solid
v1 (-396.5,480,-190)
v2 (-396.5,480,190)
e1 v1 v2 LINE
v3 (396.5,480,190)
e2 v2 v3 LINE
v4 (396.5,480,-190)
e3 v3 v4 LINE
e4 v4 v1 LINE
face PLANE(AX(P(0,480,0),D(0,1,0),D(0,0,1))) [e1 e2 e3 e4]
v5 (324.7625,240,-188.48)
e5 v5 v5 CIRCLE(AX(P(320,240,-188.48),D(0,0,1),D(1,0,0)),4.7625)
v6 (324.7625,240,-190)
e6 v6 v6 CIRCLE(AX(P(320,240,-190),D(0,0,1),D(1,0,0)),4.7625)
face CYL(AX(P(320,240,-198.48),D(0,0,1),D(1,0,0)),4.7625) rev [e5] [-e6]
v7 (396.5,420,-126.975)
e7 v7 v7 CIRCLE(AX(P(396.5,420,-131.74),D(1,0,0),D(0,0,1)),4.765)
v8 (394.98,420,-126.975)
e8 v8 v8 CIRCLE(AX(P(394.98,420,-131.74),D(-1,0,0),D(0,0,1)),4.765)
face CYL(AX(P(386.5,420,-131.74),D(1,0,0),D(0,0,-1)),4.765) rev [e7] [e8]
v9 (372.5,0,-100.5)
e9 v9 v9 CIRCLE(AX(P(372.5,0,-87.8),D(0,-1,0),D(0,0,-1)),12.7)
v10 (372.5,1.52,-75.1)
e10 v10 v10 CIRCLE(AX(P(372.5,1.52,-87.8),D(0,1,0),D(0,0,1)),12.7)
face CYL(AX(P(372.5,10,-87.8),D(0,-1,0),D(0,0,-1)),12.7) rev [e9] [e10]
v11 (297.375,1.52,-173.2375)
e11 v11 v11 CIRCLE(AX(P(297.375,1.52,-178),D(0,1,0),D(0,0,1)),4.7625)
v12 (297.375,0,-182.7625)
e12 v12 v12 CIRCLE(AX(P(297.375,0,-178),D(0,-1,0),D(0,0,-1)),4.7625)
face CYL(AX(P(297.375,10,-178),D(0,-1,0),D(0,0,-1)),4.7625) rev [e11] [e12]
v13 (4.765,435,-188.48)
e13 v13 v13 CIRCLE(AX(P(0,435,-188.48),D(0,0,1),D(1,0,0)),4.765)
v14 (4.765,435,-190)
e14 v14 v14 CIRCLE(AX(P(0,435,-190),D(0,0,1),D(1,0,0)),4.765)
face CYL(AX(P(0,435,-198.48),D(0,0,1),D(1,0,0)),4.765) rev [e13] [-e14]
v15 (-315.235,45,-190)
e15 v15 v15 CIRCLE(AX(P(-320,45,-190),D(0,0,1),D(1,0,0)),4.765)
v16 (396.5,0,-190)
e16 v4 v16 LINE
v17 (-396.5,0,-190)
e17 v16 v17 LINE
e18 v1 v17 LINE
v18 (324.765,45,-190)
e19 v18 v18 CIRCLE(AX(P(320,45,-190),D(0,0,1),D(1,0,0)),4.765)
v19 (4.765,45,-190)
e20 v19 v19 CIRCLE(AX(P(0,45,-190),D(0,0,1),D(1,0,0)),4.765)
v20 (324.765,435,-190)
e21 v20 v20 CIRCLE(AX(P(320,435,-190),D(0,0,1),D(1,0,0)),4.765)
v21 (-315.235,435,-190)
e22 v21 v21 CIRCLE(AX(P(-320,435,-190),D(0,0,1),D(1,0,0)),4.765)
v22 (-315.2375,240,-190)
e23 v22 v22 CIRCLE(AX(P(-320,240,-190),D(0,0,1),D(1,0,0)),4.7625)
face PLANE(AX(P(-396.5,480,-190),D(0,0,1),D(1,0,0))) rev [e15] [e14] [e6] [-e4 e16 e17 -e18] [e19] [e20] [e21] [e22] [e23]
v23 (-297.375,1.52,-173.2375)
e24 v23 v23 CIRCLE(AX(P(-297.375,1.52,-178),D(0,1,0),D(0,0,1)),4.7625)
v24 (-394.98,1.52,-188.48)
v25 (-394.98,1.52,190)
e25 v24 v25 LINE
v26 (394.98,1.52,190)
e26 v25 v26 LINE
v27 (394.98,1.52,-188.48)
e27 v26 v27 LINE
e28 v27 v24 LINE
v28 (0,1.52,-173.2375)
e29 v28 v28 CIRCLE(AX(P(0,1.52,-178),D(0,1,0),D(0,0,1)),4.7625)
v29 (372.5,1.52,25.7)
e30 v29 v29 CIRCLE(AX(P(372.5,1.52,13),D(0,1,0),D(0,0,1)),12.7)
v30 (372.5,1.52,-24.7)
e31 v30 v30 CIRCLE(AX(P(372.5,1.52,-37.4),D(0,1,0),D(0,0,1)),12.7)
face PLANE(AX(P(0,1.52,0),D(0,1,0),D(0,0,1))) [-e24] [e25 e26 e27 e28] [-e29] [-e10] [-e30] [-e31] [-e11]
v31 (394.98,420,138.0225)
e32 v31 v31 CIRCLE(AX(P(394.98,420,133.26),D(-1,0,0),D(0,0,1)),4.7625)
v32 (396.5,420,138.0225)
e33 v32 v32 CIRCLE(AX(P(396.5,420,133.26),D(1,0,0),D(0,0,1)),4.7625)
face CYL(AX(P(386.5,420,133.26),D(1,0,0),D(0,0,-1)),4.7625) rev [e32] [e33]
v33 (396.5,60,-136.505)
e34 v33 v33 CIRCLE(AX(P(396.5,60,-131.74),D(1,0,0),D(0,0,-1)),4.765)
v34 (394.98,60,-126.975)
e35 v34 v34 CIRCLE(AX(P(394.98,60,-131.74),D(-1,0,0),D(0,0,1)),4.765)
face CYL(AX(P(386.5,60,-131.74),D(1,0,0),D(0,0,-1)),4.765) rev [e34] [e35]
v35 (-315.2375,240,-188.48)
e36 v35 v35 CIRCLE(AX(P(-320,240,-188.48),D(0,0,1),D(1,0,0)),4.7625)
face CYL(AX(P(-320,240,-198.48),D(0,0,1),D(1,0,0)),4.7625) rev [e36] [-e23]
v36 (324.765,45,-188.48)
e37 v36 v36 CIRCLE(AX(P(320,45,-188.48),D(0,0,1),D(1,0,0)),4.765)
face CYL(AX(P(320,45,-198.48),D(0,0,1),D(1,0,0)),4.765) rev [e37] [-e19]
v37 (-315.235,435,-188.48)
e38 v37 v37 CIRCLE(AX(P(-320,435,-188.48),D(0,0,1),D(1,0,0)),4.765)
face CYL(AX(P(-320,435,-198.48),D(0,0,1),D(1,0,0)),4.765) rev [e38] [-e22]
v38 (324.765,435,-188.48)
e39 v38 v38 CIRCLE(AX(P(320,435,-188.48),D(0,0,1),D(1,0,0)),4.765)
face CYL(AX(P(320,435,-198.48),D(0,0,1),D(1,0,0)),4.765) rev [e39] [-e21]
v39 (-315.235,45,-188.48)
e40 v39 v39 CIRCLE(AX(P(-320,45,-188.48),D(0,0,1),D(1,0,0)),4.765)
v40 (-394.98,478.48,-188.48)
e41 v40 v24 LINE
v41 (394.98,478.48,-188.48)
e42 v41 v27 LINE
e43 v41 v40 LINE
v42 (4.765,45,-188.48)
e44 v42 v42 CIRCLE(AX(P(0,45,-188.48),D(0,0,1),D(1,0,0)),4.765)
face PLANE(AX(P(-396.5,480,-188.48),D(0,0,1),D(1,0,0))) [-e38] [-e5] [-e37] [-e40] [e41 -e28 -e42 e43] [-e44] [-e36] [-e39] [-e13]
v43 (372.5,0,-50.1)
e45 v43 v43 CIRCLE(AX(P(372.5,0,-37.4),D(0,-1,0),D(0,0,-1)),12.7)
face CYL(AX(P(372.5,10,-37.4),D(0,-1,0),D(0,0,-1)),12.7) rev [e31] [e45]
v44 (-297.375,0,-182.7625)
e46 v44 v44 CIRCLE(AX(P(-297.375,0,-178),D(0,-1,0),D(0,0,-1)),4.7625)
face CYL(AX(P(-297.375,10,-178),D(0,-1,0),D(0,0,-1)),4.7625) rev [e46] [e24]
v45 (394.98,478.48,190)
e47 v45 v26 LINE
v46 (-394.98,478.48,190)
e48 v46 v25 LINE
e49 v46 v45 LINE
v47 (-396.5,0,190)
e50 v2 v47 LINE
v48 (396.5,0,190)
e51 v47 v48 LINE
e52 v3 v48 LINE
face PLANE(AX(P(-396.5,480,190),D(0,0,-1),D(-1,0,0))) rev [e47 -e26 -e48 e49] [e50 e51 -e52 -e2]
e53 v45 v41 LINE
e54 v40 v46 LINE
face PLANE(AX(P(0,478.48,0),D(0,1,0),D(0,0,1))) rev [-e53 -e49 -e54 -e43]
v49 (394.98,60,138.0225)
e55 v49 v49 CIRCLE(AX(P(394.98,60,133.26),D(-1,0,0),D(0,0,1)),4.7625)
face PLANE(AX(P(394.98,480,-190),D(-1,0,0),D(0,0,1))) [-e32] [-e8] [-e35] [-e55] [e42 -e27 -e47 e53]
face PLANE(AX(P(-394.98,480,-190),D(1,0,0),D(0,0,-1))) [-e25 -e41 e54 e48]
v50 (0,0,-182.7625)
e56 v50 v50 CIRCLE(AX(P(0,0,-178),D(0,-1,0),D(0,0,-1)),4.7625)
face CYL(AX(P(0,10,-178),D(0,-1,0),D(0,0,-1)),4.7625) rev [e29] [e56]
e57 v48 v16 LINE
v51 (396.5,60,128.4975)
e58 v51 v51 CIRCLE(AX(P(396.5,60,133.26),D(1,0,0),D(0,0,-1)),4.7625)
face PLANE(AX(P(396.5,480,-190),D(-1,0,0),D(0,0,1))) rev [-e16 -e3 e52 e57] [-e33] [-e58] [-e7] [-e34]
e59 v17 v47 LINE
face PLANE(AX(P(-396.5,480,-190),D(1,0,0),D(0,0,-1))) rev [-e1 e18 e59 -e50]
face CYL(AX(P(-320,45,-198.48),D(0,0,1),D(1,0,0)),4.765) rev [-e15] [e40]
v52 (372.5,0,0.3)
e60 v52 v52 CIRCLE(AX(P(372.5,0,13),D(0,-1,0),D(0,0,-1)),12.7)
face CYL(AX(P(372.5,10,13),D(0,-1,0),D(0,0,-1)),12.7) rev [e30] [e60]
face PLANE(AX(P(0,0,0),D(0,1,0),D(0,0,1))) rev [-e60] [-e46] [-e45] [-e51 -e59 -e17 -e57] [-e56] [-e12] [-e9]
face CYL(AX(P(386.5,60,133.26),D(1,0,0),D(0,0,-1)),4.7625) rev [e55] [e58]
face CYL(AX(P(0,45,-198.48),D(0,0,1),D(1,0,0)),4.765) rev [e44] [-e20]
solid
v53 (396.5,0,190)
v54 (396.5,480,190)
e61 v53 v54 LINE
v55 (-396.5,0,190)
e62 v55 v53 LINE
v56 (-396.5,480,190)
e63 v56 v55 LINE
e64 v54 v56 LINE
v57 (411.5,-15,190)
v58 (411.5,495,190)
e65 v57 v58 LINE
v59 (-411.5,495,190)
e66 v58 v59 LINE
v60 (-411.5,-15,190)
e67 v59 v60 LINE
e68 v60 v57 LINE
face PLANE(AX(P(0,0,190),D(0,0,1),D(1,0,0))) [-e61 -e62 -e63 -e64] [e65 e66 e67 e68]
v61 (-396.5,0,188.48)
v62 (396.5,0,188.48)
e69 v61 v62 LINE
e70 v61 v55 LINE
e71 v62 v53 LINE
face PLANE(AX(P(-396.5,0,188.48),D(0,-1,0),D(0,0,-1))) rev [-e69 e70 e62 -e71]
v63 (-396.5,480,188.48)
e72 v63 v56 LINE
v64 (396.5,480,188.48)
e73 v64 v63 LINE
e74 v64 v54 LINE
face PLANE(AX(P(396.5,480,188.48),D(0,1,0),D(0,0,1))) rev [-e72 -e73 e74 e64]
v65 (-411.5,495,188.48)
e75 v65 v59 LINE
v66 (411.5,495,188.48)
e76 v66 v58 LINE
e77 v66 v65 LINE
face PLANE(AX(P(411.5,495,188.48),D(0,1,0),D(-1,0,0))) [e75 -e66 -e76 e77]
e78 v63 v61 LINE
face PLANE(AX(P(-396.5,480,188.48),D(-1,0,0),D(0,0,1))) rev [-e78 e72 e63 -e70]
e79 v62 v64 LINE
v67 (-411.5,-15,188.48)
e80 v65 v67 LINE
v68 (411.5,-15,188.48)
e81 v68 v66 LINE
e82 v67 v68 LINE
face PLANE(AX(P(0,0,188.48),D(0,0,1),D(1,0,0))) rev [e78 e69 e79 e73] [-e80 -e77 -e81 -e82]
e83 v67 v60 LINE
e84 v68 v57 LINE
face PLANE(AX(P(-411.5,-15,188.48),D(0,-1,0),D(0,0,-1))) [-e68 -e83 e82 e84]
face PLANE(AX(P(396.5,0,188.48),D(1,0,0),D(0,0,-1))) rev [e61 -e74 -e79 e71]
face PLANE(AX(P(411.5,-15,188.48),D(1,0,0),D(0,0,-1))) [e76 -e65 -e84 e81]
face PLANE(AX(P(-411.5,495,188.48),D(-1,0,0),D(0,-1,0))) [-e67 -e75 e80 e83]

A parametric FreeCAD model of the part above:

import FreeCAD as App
import Part
import Sketcher
Q = App.Units.Quantity


def faces_at(feature, points):
    """Names of the faces that lie closest to the given points."""
    faces = feature.Shape.Faces
    near = lambda p: min(range(len(faces)), key=lambda i: faces[i].distToShape(Part.Vertex(*p))[0])
    return sorted({f"Face{near(p) + 1}" for p in points})


def add_polygon(sketch, points):
    """Adds a closed chain of lines whose ends are joined by coincident constraints."""
    first, n = sketch.GeometryCount, len(points)
    for a, b in zip(points, points[1:] + points[:1]):
        sketch.addGeometry(Part.LineSegment(App.Vector(*a, 0), App.Vector(*b, 0)), False)
    for i in range(n):
        sketch.addConstraint(Sketcher.Constraint("Coincident", first + i, 2, first + (i + 1) % n, 1))

doc = App.newDocument("Part")
body = doc.addObject("PartDesign::Body", "Body")

# Sketch on XZ plane
sketch1 = body.newObject("Sketcher::SketchObject", "Sketch")
sketch1.AttachmentSupport = (doc.getObject("XZ_Plane"), [""])
sketch1.MapMode = "FlatFace"
add_polygon(sketch1, [(-396.5, -190), (-396.5, 190), (396.5, 190), (396.5, -190)])  # lines 0-3
sketch1.addConstraint([
    Sketcher.Constraint("Vertical", 0),
    Sketcher.Constraint("Horizontal", 1),
    Sketcher.Constraint("Vertical", 2),
    Sketcher.Constraint("Horizontal", 3),
    Sketcher.Constraint("Symmetric", 0, 2, 2, 2, -1, 1),
    Sketcher.Constraint("DistanceX", 1, 1, 1, 2, Q("793 mm")),
    Sketcher.Constraint("DistanceY", 0, 1, 0, 2, Q("380 mm")),
])
pad1 = body.newObject("PartDesign::Pad", "Pad")
pad1.Profile = sketch1
pad1.Length = 480
pad1.Reversed = True
doc.recompute()

thickness = body.newObject("PartDesign::Thickness", "Thickness")
thickness.Base = (pad1, faces_at(pad1, [(0, 240, 190)]))
thickness.Value = 1.52
thickness.Reversed = True
thickness.Join = "Intersection"

# Sketch on YZ plane
sketch2 = body.newObject("Sketcher::SketchObject", "Sketch001")
sketch2.AttachmentSupport = (doc.getObject("YZ_Plane"), [""])
sketch2.MapMode = "FlatFace"
sketch2.AttachmentOffset = App.Placement(App.Vector(0, 0, 396.5), App.Rotation())
sketch2.addGeometry([
    Part.Circle(App.Vector(60, -131.74, 0), App.Vector(0, 0, 1), 4.765),
    Part.Circle(App.Vector(60, 133.26, 0), App.Vector(0, 0, 1), 4.7625),
    Part.Circle(App.Vector(420, -131.74, 0), App.Vector(0, 0, 1), 4.765),
    Part.Circle(App.Vector(420, 133.26, 0), App.Vector(0, 0, 1), 4.7625),
], False)
sketch2.addConstraint([
    Sketcher.Constraint("Equal", 0, 2),
    Sketcher.Constraint("Equal", 1, 3),
    Sketcher.Constraint("Horizontal", 0, 3, 2, 3),
    Sketcher.Constraint("Horizontal", 1, 3, 3, 3),
    Sketcher.Constraint("Vertical", 0, 3, 1, 3),
    Sketcher.Constraint("Vertical", 2, 3, 3, 3),
    Sketcher.Constraint("Diameter", 0, Q("9.53 mm")),
    Sketcher.Constraint("Diameter", 1, Q("9.525 mm")),
    Sketcher.Constraint("DistanceX", -1, 1, 0, 3, Q("60 mm")),
    Sketcher.Constraint("DistanceX", -1, 1, 2, 3, Q("420 mm")),
    Sketcher.Constraint("DistanceY", 0, 3, 1, 3, Q("265 mm")),
    Sketcher.Constraint("DistanceY", 0, 3, -1, 1, Q("131.74 mm")),
])
pocket1 = body.newObject("PartDesign::Pocket", "Pocket")
pocket1.Profile = sketch2
pocket1.Length = 10

# Sketch on XY plane
sketch3 = body.newObject("Sketcher::SketchObject", "Sketch002")
sketch3.AttachmentSupport = (doc.getObject("XY_Plane"), [""])
sketch3.MapMode = "FlatFace"
sketch3.AttachmentOffset = App.Placement(App.Vector(0, 0, -188.48), App.Rotation())
sketch3.addGeometry([
    Part.Circle(App.Vector(-320, 435, 0), App.Vector(0, 0, 1), 4.765),  # 0
    Part.Circle(App.Vector(-320, 240, 0), App.Vector(0, 0, 1), 4.7625),  # 1
    Part.Circle(App.Vector(-320, 45, 0), App.Vector(0, 0, 1), 4.765),  # 2
    Part.Circle(App.Vector(320, 45, 0), App.Vector(0, 0, 1), 4.765),  # 3
    Part.Circle(App.Vector(320, 435, 0), App.Vector(0, 0, 1), 4.765),  # 4
    Part.Circle(App.Vector(320, 240, 0), App.Vector(0, 0, 1), 4.7625),  # 5
    Part.Circle(App.Vector(0, 45, 0), App.Vector(0, 0, 1), 4.765),  # 6
    Part.Circle(App.Vector(0, 435, 0), App.Vector(0, 0, 1), 4.765),  # 7
], False)
sketch3.addConstraint([
    Sketcher.Constraint("Equal", 0, 2),
    Sketcher.Constraint("Equal", 2, 3),
    Sketcher.Constraint("Equal", 3, 4),
    Sketcher.Constraint("Equal", 1, 5),
    Sketcher.Constraint("Equal", 4, 6),
    Sketcher.Constraint("Equal", 6, 7),
    Sketcher.Constraint("Symmetric", 2, 3, 3, 3, -2),
    Sketcher.Constraint("Symmetric", 0, 3, 4, 3, -2),
    Sketcher.Constraint("Symmetric", 1, 3, 5, 3, -2),
    Sketcher.Constraint("PointOnObject", 6, 3, -2),
    Sketcher.Constraint("PointOnObject", 7, 3, -2),
    Sketcher.Constraint("Horizontal", 3, 3, 6, 3),
    Sketcher.Constraint("Horizontal", 4, 3, 7, 3),
    Sketcher.Constraint("Vertical", 0, 3, 1, 3),
    Sketcher.Constraint("Vertical", 1, 3, 2, 3),
    Sketcher.Constraint("Diameter", 0, Q("9.53 mm")),
    Sketcher.Constraint("Diameter", 1, Q("9.525 mm")),
    Sketcher.Constraint("DistanceX", 0, 3, -1, 1, Q("320 mm")),
    Sketcher.Constraint("DistanceY", -1, 1, 0, 3, Q("435 mm")),
    Sketcher.Constraint("DistanceY", -1, 1, 1, 3, Q("240 mm")),
    Sketcher.Constraint("DistanceY", -1, 1, 2, 3, Q("45 mm")),
])
pocket2 = body.newObject("PartDesign::Pocket", "Pocket001")
pocket2.Profile = sketch3
pocket2.Length = 10

# Sketch on XZ plane
sketch4 = body.newObject("Sketcher::SketchObject", "Sketch003")
sketch4.AttachmentSupport = (doc.getObject("XZ_Plane"), [""])
sketch4.MapMode = "FlatFace"
sketch4.addGeometry([
    Part.Circle(App.Vector(-297.375, -178, 0), App.Vector(0, 0, 1), 4.7625),
    Part.Circle(App.Vector(0, -178, 0), App.Vector(0, 0, 1), 4.7625),
    Part.Circle(App.Vector(297.375, -178, 0), App.Vector(0, 0, 1), 4.7625),
], False)
sketch4.addConstraint([
    Sketcher.Constraint("Equal", 0, 1),
    Sketcher.Constraint("Equal", 1, 2),
    Sketcher.Constraint("Symmetric", 0, 3, 2, 3, -2),
    Sketcher.Constraint("PointOnObject", 1, 3, -2),
    Sketcher.Constraint("Horizontal", 0, 3, 1, 3),
    Sketcher.Constraint("Diameter", 0, Q("9.525 mm")),
    Sketcher.Constraint("DistanceY", 0, 3, -1, 1, Q("178 mm")),
    Sketcher.Constraint("DistanceX", 0, 3, 2, 3, Q("594.75 mm")),
])
pocket3 = body.newObject("PartDesign::Pocket", "Pocket002")
pocket3.Profile = sketch4
pocket3.Length = 10

# Sketch on XZ plane
sketch5 = body.newObject("Sketcher::SketchObject", "Sketch004")
sketch5.AttachmentSupport = (doc.getObject("XZ_Plane"), [""])
sketch5.MapMode = "FlatFace"
sketch5.addGeometry([
    Part.Circle(App.Vector(372.5, -87.8, 0), App.Vector(0, 0, 1), 12.7),
    Part.Circle(App.Vector(372.5, -37.4, 0), App.Vector(0, 0, 1), 12.7),
    Part.Circle(App.Vector(372.5, 13, 0), App.Vector(0, 0, 1), 12.7),
], False)
sketch5.addConstraint([
    Sketcher.Constraint("Equal", 0, 1),
    Sketcher.Constraint("Equal", 1, 2),
    Sketcher.Constraint("Vertical", 0, 3, 1, 3),
    Sketcher.Constraint("Vertical", 1, 3, 2, 3),
    Sketcher.Constraint("Diameter", 0, Q("25.4 mm")),
    Sketcher.Constraint("DistanceY", -1, 1, 2, 3, Q("13 mm")),
    Sketcher.Constraint("DistanceX", -1, 1, 0, 3, Q("372.5 mm")),
    Sketcher.Constraint("DistanceY", 0, 3, -1, 1, Q("87.8 mm")),
    Sketcher.Constraint("DistanceY", 1, 3, -1, 1, Q("37.4 mm")),
])
pocket4 = body.newObject("PartDesign::Pocket", "Pocket003")
pocket4.Profile = sketch5
pocket4.Length = 10
body2 = doc.addObject("PartDesign::Body", "Body001")

# Sketch on XY plane
sketch6 = body2.newObject("Sketcher::SketchObject", "Sketch005")
sketch6.AttachmentSupport = (doc.getObject("XY_Plane001"), [""])
sketch6.MapMode = "FlatFace"
sketch6.AttachmentOffset = App.Placement(App.Vector(0, 0, 190), App.Rotation())
add_polygon(sketch6, [(-411.5, 495), (-411.5, -15), (411.5, -15), (411.5, 495)])  # lines 0-3
add_polygon(sketch6, [(396.5, 0), (-396.5, 0), (-396.5, 480), (396.5, 480)])  # lines 4-7
sketch6.addConstraint([
    Sketcher.Constraint("Vertical", 0),
    Sketcher.Constraint("Horizontal", 1),
    Sketcher.Constraint("Vertical", 2),
    Sketcher.Constraint("Horizontal", 3),
    Sketcher.Constraint("Horizontal", 4),
    Sketcher.Constraint("Vertical", 5),
    Sketcher.Constraint("Horizontal", 6),
    Sketcher.Constraint("Vertical", 7),
    Sketcher.Constraint("Symmetric", 4, 2, 7, 2, -1, 1),
    Sketcher.Constraint("DistanceX", 1, 1, 1, 2, Q("823 mm")),
    Sketcher.Constraint("DistanceX", 4, 2, 4, 1, Q("793 mm")),
    Sketcher.Constraint("DistanceY", 0, 2, 0, 1, Q("510 mm")),
    Sketcher.Constraint("DistanceY", 5, 1, 5, 2, Q("480 mm")),
    Sketcher.Constraint("DistanceY", 0, 2, -1, 1, Q("15 mm")),
    Sketcher.Constraint("DistanceX", 0, 2, 4, 2, Q("15 mm")),
])
pad2 = body2.newObject("PartDesign::Pad", "Pad001")
pad2.Profile = sketch6
pad2.Length = 1.52
pad2.Reversed = True

doc.recompute()
